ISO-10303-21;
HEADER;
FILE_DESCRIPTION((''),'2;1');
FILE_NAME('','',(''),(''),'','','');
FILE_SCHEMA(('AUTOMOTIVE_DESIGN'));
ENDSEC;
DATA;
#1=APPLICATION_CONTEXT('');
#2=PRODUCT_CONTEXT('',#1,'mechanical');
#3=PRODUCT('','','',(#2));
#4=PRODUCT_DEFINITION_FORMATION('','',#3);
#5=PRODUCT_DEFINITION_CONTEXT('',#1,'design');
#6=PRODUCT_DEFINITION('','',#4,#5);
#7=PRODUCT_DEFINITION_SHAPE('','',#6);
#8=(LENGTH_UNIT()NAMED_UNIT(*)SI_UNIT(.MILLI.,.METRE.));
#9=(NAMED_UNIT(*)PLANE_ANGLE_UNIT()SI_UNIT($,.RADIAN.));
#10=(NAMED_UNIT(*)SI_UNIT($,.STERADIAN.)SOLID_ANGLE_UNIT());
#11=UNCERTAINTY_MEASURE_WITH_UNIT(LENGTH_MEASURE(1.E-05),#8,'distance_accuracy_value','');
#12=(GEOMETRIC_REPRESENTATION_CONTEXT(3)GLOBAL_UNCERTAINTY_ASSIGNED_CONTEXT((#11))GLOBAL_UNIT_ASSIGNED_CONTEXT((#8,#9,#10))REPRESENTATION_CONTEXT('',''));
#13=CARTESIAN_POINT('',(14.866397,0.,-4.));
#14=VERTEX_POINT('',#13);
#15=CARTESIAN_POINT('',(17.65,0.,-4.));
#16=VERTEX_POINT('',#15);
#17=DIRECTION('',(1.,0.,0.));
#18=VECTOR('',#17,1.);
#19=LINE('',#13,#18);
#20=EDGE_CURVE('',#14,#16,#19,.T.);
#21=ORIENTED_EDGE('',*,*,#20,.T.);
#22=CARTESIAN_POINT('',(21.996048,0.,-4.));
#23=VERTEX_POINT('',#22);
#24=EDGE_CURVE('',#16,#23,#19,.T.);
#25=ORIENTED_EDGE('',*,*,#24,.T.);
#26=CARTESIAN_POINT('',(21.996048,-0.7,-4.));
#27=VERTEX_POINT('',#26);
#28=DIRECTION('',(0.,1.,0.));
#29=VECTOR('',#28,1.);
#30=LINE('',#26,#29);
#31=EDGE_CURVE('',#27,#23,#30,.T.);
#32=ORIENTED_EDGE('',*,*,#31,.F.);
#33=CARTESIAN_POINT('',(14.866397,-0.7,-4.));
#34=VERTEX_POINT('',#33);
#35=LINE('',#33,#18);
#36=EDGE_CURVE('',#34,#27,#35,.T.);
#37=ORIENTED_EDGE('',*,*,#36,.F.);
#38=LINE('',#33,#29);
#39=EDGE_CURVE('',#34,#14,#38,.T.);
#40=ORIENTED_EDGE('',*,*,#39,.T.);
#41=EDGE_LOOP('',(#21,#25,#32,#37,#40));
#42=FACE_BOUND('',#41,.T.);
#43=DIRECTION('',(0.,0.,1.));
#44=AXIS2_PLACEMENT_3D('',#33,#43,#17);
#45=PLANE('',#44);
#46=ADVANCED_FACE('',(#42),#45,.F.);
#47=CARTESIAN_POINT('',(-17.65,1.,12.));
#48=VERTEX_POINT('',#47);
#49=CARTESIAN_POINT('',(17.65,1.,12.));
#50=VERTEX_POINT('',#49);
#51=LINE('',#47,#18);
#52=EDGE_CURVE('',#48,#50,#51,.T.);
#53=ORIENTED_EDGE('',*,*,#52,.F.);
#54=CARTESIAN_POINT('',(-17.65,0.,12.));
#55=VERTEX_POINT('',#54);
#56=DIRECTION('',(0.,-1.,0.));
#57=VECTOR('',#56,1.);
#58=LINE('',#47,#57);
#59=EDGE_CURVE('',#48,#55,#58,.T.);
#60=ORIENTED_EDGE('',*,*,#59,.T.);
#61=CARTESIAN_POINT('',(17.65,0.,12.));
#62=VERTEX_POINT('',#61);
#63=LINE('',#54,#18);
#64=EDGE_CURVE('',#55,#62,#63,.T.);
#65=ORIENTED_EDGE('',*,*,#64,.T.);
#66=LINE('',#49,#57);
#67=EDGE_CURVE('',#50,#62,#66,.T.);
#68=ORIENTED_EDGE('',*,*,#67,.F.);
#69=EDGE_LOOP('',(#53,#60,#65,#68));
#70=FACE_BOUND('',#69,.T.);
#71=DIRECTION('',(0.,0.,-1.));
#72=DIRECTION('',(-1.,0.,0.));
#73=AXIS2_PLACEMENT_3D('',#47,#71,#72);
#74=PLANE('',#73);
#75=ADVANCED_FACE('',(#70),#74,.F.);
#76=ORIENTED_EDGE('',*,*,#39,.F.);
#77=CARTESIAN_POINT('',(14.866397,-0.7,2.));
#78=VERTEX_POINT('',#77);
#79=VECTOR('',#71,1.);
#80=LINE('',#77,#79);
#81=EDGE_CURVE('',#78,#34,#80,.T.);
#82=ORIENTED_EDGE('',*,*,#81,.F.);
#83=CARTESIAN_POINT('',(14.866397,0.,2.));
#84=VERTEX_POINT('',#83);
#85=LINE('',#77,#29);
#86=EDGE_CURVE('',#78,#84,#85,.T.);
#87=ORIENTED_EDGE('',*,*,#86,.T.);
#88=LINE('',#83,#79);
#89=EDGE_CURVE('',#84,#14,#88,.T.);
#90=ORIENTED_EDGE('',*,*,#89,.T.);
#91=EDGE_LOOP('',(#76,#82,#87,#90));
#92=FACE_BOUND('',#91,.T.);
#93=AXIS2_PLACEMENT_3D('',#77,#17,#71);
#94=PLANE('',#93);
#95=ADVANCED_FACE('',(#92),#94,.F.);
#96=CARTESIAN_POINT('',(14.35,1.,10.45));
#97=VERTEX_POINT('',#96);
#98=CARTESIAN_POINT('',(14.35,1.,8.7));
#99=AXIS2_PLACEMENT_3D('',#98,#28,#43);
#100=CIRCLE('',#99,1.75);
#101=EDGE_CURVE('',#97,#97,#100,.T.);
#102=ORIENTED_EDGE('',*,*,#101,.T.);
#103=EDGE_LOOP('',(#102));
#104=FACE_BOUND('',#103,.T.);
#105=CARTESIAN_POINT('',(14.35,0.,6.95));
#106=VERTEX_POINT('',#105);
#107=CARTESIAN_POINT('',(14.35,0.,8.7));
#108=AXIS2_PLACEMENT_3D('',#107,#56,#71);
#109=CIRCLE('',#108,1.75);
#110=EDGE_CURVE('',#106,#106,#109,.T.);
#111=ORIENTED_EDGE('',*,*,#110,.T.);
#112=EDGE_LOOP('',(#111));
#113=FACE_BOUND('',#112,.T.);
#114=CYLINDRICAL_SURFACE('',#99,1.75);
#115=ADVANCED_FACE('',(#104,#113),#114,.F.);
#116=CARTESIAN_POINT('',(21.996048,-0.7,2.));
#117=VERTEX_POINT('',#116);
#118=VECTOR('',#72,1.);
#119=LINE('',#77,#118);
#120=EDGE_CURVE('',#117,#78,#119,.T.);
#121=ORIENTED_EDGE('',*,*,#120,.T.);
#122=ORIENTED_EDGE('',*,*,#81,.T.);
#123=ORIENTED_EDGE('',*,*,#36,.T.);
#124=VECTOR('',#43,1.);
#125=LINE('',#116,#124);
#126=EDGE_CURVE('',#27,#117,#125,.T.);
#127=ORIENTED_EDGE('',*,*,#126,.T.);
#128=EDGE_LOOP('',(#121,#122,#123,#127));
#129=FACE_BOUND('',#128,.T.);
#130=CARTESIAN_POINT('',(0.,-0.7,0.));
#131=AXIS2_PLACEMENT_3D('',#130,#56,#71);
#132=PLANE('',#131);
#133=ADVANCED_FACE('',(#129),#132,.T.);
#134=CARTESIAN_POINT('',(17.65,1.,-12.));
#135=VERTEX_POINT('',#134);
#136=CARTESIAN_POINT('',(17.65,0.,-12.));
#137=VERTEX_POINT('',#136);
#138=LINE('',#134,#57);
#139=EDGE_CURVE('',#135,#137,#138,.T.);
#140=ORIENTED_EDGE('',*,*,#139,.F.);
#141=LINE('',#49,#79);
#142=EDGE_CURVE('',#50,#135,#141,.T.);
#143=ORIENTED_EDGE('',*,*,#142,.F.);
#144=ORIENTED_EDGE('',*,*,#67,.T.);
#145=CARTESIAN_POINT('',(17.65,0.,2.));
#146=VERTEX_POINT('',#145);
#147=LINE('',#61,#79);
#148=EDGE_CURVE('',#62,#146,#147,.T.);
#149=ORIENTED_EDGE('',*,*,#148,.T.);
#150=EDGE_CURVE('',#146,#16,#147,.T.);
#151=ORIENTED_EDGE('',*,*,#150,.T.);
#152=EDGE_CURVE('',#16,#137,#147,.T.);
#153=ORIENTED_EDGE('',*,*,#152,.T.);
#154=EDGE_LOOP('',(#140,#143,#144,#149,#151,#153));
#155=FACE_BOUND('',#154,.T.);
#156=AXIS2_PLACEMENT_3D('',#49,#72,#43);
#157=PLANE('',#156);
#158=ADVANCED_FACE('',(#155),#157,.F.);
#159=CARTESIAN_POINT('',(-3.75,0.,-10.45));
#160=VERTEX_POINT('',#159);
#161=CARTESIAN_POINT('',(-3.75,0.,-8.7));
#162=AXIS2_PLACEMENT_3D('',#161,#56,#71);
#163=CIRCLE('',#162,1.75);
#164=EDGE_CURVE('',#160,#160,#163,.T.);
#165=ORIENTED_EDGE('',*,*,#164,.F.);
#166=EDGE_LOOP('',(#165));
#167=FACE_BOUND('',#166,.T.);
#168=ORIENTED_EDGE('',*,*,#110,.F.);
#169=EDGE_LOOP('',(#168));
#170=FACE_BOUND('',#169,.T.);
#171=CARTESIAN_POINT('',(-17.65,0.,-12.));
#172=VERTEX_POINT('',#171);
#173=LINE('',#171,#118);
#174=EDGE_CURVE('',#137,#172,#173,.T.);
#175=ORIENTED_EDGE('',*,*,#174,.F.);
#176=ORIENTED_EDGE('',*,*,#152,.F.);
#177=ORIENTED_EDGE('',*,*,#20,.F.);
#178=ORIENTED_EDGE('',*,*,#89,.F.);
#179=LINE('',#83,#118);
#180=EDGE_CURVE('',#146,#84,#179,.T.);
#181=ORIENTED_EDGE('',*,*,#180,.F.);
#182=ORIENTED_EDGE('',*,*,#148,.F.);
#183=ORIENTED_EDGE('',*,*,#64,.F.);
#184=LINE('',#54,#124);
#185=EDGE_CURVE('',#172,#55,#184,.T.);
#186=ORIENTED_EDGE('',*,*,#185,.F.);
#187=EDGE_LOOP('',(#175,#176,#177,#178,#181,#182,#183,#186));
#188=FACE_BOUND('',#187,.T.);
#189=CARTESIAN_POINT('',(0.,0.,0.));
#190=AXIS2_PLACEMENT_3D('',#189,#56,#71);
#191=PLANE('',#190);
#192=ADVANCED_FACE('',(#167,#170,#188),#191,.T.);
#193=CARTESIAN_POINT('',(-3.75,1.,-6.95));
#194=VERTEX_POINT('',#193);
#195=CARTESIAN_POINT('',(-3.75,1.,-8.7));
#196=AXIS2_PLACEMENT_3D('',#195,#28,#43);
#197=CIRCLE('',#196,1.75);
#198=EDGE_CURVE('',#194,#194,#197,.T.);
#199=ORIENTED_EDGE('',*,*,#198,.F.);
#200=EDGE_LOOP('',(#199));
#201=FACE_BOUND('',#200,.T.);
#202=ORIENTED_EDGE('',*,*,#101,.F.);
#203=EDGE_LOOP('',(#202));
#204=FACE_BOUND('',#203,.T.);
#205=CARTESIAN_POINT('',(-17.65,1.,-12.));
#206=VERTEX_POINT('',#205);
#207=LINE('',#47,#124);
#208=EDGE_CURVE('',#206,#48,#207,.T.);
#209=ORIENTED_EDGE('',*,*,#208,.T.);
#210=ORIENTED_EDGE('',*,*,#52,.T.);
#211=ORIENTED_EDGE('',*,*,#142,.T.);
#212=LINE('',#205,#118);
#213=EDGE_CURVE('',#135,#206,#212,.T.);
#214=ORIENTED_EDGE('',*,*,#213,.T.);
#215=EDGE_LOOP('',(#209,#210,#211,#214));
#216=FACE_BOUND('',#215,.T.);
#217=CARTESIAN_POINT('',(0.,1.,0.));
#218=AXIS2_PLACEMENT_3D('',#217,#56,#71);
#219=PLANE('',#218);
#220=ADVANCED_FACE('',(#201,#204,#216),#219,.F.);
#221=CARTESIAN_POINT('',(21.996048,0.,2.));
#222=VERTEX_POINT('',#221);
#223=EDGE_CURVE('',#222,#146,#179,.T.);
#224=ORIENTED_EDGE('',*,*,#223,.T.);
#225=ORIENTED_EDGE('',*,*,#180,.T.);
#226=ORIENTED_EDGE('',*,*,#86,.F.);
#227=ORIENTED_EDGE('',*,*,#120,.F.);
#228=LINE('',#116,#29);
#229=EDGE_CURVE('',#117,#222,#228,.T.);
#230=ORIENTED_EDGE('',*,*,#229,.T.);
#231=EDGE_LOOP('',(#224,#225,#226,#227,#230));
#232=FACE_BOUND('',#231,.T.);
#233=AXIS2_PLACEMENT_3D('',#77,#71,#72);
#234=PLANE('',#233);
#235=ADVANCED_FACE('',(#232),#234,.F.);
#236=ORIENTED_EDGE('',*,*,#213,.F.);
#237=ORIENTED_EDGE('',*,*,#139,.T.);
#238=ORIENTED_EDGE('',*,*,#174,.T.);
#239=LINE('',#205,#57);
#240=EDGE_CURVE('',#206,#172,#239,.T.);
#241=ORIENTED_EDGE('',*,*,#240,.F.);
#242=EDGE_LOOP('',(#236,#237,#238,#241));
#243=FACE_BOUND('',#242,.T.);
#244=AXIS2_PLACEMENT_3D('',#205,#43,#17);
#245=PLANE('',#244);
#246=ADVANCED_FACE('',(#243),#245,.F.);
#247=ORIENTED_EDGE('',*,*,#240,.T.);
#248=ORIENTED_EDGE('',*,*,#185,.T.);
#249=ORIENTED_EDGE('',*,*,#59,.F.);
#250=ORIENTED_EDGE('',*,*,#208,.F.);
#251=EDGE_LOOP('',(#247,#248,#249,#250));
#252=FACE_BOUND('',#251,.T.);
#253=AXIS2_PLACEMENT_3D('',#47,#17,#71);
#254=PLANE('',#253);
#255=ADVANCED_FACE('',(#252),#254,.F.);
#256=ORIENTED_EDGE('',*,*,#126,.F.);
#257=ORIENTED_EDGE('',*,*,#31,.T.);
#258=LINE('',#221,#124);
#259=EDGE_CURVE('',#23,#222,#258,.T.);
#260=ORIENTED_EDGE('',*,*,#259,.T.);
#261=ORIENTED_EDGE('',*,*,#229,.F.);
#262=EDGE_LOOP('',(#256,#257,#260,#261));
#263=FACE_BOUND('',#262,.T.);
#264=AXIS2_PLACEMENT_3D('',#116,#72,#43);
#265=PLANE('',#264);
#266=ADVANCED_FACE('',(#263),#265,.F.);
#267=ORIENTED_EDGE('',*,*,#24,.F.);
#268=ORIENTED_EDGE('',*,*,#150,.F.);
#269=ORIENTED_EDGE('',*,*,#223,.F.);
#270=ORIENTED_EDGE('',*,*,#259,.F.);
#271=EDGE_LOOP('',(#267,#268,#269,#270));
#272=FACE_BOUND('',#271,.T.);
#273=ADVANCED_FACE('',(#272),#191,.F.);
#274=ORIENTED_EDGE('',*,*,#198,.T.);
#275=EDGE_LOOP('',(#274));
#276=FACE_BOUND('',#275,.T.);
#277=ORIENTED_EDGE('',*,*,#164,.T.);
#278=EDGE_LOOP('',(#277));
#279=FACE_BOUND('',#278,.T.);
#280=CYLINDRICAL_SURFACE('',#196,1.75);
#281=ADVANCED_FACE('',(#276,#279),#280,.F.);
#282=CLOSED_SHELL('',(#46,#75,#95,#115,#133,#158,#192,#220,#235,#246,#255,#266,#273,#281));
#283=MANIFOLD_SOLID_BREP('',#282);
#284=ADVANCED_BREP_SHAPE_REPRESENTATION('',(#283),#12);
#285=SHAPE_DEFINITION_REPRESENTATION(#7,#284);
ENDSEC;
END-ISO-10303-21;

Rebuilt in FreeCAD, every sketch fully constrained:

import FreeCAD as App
import Part
import Sketcher

V = App.Vector


def add_polygon(sketch, points):
    """Adds a closed chain of lines whose ends are joined by coincident constraints."""
    first, n = sketch.GeometryCount, len(points)
    for a, b in zip(points, points[1:] + points[:1]):
        sketch.addGeometry(Part.LineSegment(App.Vector(*a, 0), App.Vector(*b, 0)), False)
    for i in range(n):
        sketch.addConstraint(Sketcher.Constraint("Coincident", first + i, 2, first + (i + 1) % n, 1))

doc = App.newDocument("Part")
body = doc.addObject("PartDesign::Body", "Body")

sketch1 = doc.addObject("Sketcher::SketchObject", "Sketch")
body.addObject(sketch1)
sketch1.AttachmentSupport = (doc.XZ_Plane, [""])
sketch1.MapMode = "FlatFace"
add_polygon(sketch1, [(-17.65, -12), (-17.65, 12), (17.65, 12), (17.65, -12)])
sketch1.addConstraint(Sketcher.Constraint("Vertical", 0))
sketch1.addConstraint(Sketcher.Constraint("Horizontal", 1))
sketch1.addConstraint(Sketcher.Constraint("Vertical", 2))
sketch1.addConstraint(Sketcher.Constraint("Horizontal", 3))
sketch1.addConstraint(Sketcher.Constraint("Symmetric", 0, 2, 2, 2, -1, 1))
sketch1.addConstraint(Sketcher.Constraint("DistanceY", 0, 1, 0, 2, 24.0))
sketch1.addConstraint(Sketcher.Constraint("DistanceX", 1, 1, 1, 2, 35.3))
pad1 = doc.addObject("PartDesign::Pad", "Pad")
body.addObject(pad1)
pad1.Profile = sketch1
pad1.Length = 1
pad1.Reversed = True

sketch2 = doc.addObject("Sketcher::SketchObject", "Sketch001")
body.addObject(sketch2)
sketch2.AttachmentSupport = (doc.XZ_Plane, [""])
sketch2.MapMode = "FlatFace"
sketch2.AttachmentOffset = App.Placement(V(0, 0, -1), App.Rotation())
sketch2.addGeometry(Part.Circle(V(-3.75, -8.7, 0), V(0, 0, 1), 1.75), False)
sketch2.addGeometry(Part.Circle(V(14.35, 8.7, 0), V(0, 0, 1), 1.75), False)
sketch2.addConstraint(Sketcher.Constraint("Equal", 0, 1))
sketch2.addConstraint(Sketcher.Constraint("Diameter", 0, 3.5))
sketch2.addConstraint(Sketcher.Constraint("DistanceY", 0, 3, -1, 1, 8.7))
sketch2.addConstraint(Sketcher.Constraint("DistanceY", -1, 1, 1, 3, 8.7))
sketch2.addConstraint(Sketcher.Constraint("DistanceX", 0, 3, 1, 3, 18.1))
sketch2.addConstraint(Sketcher.Constraint("DistanceX", 0, 3, -1, 1, 3.75))
doc.recompute()
hole = doc.addObject("PartDesign::Hole", "Hole")
body.addObject(hole)
hole.Profile = sketch2
hole.ThreadType = "None"
hole.Diameter = 3.5
hole.DepthType = "ThroughAll"
hole.Reversed = True

sketch3 = doc.addObject("Sketcher::SketchObject", "Sketch002")
body.addObject(sketch3)
sketch3.AttachmentSupport = (doc.XZ_Plane, [""])
sketch3.MapMode = "FlatFace"
add_polygon(sketch3, [(14.866397, 2), (14.866397, -4), (21.996048, -4), (21.996048, 2)])
sketch3.addConstraint(Sketcher.Constraint("Vertical", 0))
sketch3.addConstraint(Sketcher.Constraint("Horizontal", 1))
sketch3.addConstraint(Sketcher.Constraint("Vertical", 2))
sketch3.addConstraint(Sketcher.Constraint("Horizontal", 3))
sketch3.addConstraint(Sketcher.Constraint("DistanceY", 0, 2, 0, 1, 6.0))
sketch3.addConstraint(Sketcher.Constraint("DistanceY", 0, 2, -1, 1, 4.0))
sketch3.addConstraint(Sketcher.Constraint("DistanceX", 1, 1, 1, 2, 7.129651))
sketch3.addConstraint(Sketcher.Constraint("DistanceX", -1, 1, 0, 2, 14.866397))
pad2 = doc.addObject("PartDesign::Pad", "Pad001")
body.addObject(pad2)
pad2.Profile = sketch3
pad2.Length = 0.7

doc.recompute()
